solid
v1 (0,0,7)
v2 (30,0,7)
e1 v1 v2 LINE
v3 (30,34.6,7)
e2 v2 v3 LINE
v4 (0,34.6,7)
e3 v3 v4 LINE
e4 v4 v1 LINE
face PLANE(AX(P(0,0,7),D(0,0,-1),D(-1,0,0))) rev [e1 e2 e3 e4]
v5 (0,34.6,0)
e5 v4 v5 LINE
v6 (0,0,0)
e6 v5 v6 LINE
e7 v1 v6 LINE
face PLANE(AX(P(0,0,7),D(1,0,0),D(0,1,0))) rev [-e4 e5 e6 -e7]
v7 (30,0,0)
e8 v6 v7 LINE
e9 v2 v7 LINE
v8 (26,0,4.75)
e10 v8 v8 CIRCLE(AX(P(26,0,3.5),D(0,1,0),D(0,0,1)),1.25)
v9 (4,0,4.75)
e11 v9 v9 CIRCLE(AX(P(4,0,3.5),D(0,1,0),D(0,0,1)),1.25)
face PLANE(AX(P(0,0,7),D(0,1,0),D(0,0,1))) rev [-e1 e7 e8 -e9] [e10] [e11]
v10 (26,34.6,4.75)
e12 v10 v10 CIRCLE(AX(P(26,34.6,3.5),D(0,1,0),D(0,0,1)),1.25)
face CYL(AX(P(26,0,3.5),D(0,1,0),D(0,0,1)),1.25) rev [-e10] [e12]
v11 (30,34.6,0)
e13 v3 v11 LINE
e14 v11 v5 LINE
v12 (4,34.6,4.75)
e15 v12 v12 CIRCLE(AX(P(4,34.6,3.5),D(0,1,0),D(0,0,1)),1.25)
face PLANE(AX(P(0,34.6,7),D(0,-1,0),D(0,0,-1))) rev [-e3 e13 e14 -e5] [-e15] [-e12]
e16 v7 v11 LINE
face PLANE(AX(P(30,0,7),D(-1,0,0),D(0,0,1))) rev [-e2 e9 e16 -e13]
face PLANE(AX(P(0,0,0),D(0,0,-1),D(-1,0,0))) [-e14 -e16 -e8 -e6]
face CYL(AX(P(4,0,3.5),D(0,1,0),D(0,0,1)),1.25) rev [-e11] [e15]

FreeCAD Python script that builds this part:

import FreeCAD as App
import Part
import Sketcher

V = App.Vector

doc = App.newDocument("Part")
body = doc.addObject("PartDesign::Body", "Body")

# Sketch on XY plane
sketch1 = body.newObject("Sketcher::SketchObject", "Sketch")
sketch1.AttachmentSupport = (doc.getObject("XY_Plane"), [""])
sketch1.MapMode = "FlatFace"
sketch1.addGeometry([
    Part.LineSegment(V(0, 35, 0), V(0, 0, 0)),
    Part.LineSegment(V(0, 0, 0), V(30, 0, 0)),
    Part.LineSegment(V(30, 0, 0), V(30, 35, 0)),
    Part.LineSegment(V(30, 35, 0), V(0, 35, 0)),
], False)
sketch1.addConstraint([
    Sketcher.Constraint("Coincident", 0, 2, 1, 1),
    Sketcher.Constraint("Coincident", 1, 2, 2, 1),
    Sketcher.Constraint("Coincident", 2, 2, 3, 1),
    Sketcher.Constraint("Coincident", 3, 2, 0, 1),
    Sketcher.Constraint("Vertical", 0),
    Sketcher.Constraint("Horizontal", 1),
    Sketcher.Constraint("Vertical", 2),
    Sketcher.Constraint("Horizontal", 3),
    Sketcher.Constraint("Coincident", 0, 2, -1, 1),
    Sketcher.Constraint("DistanceX", 1, 1, 1, 2, 30.0),
    Sketcher.Constraint("DistanceY", 0, 2, 0, 1, 34.6),
])
pad1 = body.newObject("PartDesign::Pad", "Pad")
pad1.Profile = sketch1
pad1.Length = 7

# Sketch on XZ plane
sketch2 = body.newObject("Sketcher::SketchObject", "Sketch001")
sketch2.AttachmentSupport = (doc.getObject("XZ_Plane"), [""])
sketch2.MapMode = "FlatFace"
sketch2.AttachmentOffset = App.Placement(V(0, 0, -34.6), App.Rotation())
sketch2.addGeometry([
    Part.Circle(V(4, 3.5, 0), V(0, 0, 1), 1.2),
    Part.Circle(V(26, 3.5, 0), V(0, 0, 1), 1.2),
], False)
sketch2.addConstraint([
    Sketcher.Constraint("Equal", 0, 1),
    Sketcher.Constraint("Horizontal", 0, 3, 1, 3),
    Sketcher.Constraint("Diameter", 0, 2.5),
    Sketcher.Constraint("DistanceX", -1, 1, 0, 3, 4.0),
    Sketcher.Constraint("DistanceX", -1, 1, 1, 3, 26.0),
    Sketcher.Constraint("DistanceY", -1, 1, 0, 3, 3.5),
])
pocket1 = body.newObject("PartDesign::Pocket", "Pocket")
pocket1.Profile = sketch2
pocket1.Type = "ThroughAll"
pocket1.Reversed = True

doc.recompute()
